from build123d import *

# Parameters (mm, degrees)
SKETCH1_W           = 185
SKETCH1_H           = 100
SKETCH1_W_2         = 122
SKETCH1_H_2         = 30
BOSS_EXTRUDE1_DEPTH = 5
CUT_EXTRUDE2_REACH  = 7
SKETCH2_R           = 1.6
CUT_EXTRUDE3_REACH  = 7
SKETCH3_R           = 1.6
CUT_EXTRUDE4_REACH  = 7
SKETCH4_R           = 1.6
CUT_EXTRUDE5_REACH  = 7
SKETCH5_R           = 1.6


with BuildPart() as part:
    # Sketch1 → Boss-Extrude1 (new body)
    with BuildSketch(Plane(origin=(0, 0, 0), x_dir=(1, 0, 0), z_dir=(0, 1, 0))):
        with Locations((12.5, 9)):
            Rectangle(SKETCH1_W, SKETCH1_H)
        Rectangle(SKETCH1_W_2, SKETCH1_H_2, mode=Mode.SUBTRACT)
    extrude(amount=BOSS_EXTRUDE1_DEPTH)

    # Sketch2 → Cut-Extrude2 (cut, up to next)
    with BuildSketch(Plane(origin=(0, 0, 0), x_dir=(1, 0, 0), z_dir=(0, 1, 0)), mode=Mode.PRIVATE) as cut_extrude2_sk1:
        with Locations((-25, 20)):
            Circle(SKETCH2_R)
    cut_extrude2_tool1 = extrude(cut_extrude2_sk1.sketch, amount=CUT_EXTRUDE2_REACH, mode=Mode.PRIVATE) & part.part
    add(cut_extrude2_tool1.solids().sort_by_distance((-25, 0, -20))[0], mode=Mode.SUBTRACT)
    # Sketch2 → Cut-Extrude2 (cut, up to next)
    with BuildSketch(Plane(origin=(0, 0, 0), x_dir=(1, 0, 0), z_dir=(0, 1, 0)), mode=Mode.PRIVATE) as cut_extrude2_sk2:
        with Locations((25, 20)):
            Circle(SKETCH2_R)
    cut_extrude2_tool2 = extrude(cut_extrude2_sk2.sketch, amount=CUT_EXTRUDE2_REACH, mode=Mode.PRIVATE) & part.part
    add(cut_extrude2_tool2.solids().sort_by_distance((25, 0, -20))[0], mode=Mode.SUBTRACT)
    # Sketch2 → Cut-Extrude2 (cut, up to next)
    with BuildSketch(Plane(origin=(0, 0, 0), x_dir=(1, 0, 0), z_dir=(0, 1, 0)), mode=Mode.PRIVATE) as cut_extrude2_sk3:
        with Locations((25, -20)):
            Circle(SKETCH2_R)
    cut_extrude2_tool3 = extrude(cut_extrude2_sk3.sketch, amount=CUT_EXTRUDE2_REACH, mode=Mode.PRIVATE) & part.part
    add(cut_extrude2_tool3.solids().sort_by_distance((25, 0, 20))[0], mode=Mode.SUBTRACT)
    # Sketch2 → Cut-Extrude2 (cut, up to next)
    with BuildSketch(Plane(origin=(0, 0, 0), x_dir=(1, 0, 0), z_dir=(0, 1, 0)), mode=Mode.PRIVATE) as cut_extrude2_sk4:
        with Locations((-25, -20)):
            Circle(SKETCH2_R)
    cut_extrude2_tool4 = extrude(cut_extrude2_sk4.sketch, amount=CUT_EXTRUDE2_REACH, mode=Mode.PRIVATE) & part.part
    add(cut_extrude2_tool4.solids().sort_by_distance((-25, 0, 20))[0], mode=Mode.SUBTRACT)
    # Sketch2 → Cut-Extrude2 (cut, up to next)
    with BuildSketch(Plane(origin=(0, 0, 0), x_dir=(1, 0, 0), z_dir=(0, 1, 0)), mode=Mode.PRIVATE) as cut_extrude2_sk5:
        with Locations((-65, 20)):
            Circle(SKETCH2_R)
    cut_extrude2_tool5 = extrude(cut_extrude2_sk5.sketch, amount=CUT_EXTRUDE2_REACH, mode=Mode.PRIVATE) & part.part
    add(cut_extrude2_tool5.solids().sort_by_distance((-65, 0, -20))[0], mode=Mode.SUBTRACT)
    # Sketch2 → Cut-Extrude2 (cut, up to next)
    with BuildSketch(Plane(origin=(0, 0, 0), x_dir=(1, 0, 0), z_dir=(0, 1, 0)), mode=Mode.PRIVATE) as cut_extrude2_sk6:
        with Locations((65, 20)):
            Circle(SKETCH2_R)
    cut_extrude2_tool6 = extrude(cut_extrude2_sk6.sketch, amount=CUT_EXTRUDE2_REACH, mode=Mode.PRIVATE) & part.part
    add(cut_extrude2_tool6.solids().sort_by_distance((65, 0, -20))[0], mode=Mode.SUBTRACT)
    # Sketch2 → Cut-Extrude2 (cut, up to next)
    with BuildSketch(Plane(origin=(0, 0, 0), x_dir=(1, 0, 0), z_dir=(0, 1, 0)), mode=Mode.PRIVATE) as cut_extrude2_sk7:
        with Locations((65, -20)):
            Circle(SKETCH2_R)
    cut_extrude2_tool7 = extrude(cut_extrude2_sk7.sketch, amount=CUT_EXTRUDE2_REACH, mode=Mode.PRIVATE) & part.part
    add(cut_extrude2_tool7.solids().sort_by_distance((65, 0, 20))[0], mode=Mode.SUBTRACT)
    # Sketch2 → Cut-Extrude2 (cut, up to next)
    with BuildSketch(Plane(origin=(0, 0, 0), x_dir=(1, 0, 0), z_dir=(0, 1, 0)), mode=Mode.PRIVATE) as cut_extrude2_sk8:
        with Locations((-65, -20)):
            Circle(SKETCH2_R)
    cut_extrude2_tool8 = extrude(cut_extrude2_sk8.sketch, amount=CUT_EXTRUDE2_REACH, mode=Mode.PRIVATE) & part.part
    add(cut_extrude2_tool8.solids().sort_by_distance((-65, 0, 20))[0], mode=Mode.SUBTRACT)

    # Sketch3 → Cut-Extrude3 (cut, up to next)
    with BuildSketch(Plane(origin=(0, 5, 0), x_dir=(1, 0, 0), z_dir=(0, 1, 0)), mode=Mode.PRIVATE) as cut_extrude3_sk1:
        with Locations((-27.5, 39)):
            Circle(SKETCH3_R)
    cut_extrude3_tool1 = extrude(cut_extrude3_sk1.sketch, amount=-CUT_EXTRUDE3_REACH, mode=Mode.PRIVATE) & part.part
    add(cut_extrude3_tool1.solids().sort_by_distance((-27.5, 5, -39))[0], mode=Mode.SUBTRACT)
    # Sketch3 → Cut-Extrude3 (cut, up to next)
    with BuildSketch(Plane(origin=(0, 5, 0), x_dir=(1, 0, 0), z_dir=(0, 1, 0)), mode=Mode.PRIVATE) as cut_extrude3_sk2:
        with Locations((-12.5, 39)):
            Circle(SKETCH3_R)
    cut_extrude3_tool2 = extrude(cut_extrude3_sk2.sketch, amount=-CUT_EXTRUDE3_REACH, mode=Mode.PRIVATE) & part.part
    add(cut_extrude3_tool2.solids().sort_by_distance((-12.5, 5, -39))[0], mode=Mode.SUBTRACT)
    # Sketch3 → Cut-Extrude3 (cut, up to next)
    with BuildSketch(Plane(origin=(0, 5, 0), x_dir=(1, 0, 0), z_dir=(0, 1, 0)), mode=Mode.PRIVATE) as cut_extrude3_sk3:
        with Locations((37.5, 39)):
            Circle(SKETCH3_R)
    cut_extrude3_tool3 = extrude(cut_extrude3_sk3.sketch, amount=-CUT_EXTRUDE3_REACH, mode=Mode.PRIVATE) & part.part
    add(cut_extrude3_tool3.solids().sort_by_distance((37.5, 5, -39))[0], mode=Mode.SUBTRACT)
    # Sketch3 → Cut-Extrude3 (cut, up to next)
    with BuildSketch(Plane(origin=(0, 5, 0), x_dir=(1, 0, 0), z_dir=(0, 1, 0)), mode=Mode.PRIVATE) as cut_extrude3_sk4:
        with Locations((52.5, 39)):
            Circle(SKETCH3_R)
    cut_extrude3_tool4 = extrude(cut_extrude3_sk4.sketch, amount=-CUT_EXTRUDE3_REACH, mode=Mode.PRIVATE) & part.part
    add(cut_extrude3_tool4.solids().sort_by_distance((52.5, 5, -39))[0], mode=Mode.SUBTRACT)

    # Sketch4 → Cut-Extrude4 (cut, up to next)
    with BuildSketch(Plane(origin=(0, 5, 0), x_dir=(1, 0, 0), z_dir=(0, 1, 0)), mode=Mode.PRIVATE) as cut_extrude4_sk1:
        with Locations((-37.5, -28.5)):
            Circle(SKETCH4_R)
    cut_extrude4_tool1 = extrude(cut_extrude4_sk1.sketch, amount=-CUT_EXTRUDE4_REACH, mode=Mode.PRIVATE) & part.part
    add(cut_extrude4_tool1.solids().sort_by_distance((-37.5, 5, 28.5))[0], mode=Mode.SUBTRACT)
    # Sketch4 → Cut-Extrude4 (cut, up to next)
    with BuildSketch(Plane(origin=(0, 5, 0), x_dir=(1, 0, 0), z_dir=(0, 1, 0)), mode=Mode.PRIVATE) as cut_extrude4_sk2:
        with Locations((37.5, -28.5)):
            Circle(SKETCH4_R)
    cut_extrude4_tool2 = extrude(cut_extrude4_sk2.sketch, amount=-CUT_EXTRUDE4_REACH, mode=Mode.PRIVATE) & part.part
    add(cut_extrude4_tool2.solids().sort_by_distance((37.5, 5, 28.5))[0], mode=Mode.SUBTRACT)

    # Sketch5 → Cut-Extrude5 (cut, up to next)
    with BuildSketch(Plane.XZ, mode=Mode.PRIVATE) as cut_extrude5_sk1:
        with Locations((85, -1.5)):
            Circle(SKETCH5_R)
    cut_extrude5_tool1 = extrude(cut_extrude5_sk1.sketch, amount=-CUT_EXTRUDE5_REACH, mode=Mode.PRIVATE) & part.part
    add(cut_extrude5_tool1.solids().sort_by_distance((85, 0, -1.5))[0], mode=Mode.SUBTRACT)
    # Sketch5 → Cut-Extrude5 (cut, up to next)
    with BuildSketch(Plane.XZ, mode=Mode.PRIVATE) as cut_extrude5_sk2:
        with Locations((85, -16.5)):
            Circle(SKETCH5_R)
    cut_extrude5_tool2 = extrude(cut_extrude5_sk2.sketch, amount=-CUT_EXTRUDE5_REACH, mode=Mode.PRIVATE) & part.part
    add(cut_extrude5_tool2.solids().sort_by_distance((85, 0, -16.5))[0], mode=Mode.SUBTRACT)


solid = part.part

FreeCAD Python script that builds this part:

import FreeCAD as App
import Part
import Sketcher

V = App.Vector
Q = App.Units.Quantity

doc = App.newDocument("Part")
body = doc.addObject("PartDesign::Body", "Body")

# Sketch on XZ plane
sketch1 = doc.addObject("Sketcher::SketchObject", "Sketch")
body.addObject(sketch1)
sketch1.AttachmentSupport = (doc.XZ_Plane, [""])
sketch1.MapMode = "FlatFace"
sketch1.addGeometry([
    Part.LineSegment(V(-80, -59, 0), V(-80, 41, 0)),  # 0
    Part.LineSegment(V(-80, 41, 0), V(105, 41, 0)),  # 1
    Part.LineSegment(V(105, 41, 0), V(105, -59, 0)),  # 2
    Part.LineSegment(V(105, -59, 0), V(-80, -59, 0)),  # 3
    Part.LineSegment(V(61, 15, 0), V(-61, 15, 0)),  # 4
    Part.LineSegment(V(-61, 15, 0), V(-61, -15, 0)),  # 5
    Part.LineSegment(V(-61, -15, 0), V(61, -15, 0)),  # 6
    Part.LineSegment(V(61, -15, 0), V(61, 15, 0)),  # 7
], False)
sketch1.addConstraint([
    Sketcher.Constraint("Coincident", 0, 2, 1, 1),
    Sketcher.Constraint("Coincident", 1, 2, 2, 1),
    Sketcher.Constraint("Coincident", 2, 2, 3, 1),
    Sketcher.Constraint("Coincident", 3, 2, 0, 1),
    Sketcher.Constraint("Coincident", 4, 2, 5, 1),
    Sketcher.Constraint("Coincident", 5, 2, 6, 1),
    Sketcher.Constraint("Coincident", 6, 2, 7, 1),
    Sketcher.Constraint("Coincident", 7, 2, 4, 1),
    Sketcher.Constraint("Vertical", 0),
    Sketcher.Constraint("Horizontal", 1),
    Sketcher.Constraint("Vertical", 2),
    Sketcher.Constraint("Horizontal", 3),
    Sketcher.Constraint("Horizontal", 4),
    Sketcher.Constraint("Vertical", 5),
    Sketcher.Constraint("Horizontal", 6),
    Sketcher.Constraint("Vertical", 7),
    Sketcher.Constraint("Symmetric", 4, 2, 6, 2, -1, 1),
    Sketcher.Constraint("DistanceX", 1, 1, 1, 2, Q("185 mm")),
    Sketcher.Constraint("DistanceX", 4, 2, 4, 1, Q("122 mm")),
    Sketcher.Constraint("DistanceY", 0, 1, 0, 2, Q("100 mm")),
    Sketcher.Constraint("DistanceY", 5, 2, 5, 1, Q("30 mm")),
    Sketcher.Constraint("DistanceX", 0, 2, -1, 1, Q("80 mm")),
    Sketcher.Constraint("DistanceY", -1, 1, 0, 2, Q("41 mm")),
])
pad1 = doc.addObject("PartDesign::Pad", "Pad")
body.addObject(pad1)
pad1.Profile = sketch1
pad1.Length = 5
pad1.Reversed = True

# Sketch on XZ plane
sketch2 = doc.addObject("Sketcher::SketchObject", "Sketch001")
body.addObject(sketch2)
sketch2.AttachmentSupport = (doc.XZ_Plane, [""])
sketch2.MapMode = "FlatFace"
sketch2.addGeometry(Part.Circle(V(-25, -20, 0), V(0, 0, 1), 1.6), False)
sketch2.addConstraint([
    Sketcher.Constraint("Diameter", 0, Q("3.2 mm")),
    Sketcher.Constraint("DistanceX", 0, 3, -1, 1, Q("25 mm")),
    Sketcher.Constraint("DistanceY", 0, 3, -1, 1, Q("20 mm")),
])
pocket1 = doc.addObject("PartDesign::Pocket", "Pocket")
body.addObject(pocket1)
pocket1.Profile = sketch2
pocket1.Type = "UpToFirst"

# Sketch on XZ plane
sketch3 = doc.addObject("Sketcher::SketchObject", "Sketch002")
body.addObject(sketch3)
sketch3.AttachmentSupport = (doc.XZ_Plane, [""])
sketch3.MapMode = "FlatFace"
sketch3.addGeometry(Part.Circle(V(25, -20, 0), V(0, 0, 1), 1.6), False)
sketch3.addConstraint([
    Sketcher.Constraint("Diameter", 0, Q("3.2 mm")),
    Sketcher.Constraint("DistanceX", -1, 1, 0, 3, Q("25 mm")),
    Sketcher.Constraint("DistanceY", 0, 3, -1, 1, Q("20 mm")),
])
pocket2 = doc.addObject("PartDesign::Pocket", "Pocket001")
body.addObject(pocket2)
pocket2.Profile = sketch3
pocket2.Type = "UpToFirst"

# Sketch on XZ plane
sketch4 = doc.addObject("Sketcher::SketchObject", "Sketch003")
body.addObject(sketch4)
sketch4.AttachmentSupport = (doc.XZ_Plane, [""])
sketch4.MapMode = "FlatFace"
sketch4.addGeometry(Part.Circle(V(25, 20, 0), V(0, 0, 1), 1.6), False)
sketch4.addConstraint([
    Sketcher.Constraint("Diameter", 0, Q("3.2 mm")),
    Sketcher.Constraint("DistanceX", -1, 1, 0, 3, Q("25 mm")),
    Sketcher.Constraint("DistanceY", -1, 1, 0, 3, Q("20 mm")),
])
pocket3 = doc.addObject("PartDesign::Pocket", "Pocket002")
body.addObject(pocket3)
pocket3.Profile = sketch4
pocket3.Type = "UpToFirst"

# Sketch on XZ plane
sketch5 = doc.addObject("Sketcher::SketchObject", "Sketch004")
body.addObject(sketch5)
sketch5.AttachmentSupport = (doc.XZ_Plane, [""])
sketch5.MapMode = "FlatFace"
sketch5.addGeometry(Part.Circle(V(-25, 20, 0), V(0, 0, 1), 1.6), False)
sketch5.addConstraint([
    Sketcher.Constraint("Diameter", 0, Q("3.2 mm")),
    Sketcher.Constraint("DistanceX", 0, 3, -1, 1, Q("25 mm")),
    Sketcher.Constraint("DistanceY", -1, 1, 0, 3, Q("20 mm")),
])
pocket4 = doc.addObject("PartDesign::Pocket", "Pocket003")
body.addObject(pocket4)
pocket4.Profile = sketch5
pocket4.Type = "UpToFirst"

# Sketch on XZ plane
sketch6 = doc.addObject("Sketcher::SketchObject", "Sketch005")
body.addObject(sketch6)
sketch6.AttachmentSupport = (doc.XZ_Plane, [""])
sketch6.MapMode = "FlatFace"
sketch6.addGeometry(Part.Circle(V(-65, -20, 0), V(0, 0, 1), 1.6), False)
sketch6.addConstraint([
    Sketcher.Constraint("Diameter", 0, Q("3.2 mm")),
    Sketcher.Constraint("DistanceX", 0, 3, -1, 1, Q("65 mm")),
    Sketcher.Constraint("DistanceY", 0, 3, -1, 1, Q("20 mm")),
])
pocket5 = doc.addObject("PartDesign::Pocket", "Pocket004")
body.addObject(pocket5)
pocket5.Profile = sketch6
pocket5.Type = "UpToFirst"

# Sketch on XZ plane
sketch7 = doc.addObject("Sketcher::SketchObject", "Sketch006")
body.addObject(sketch7)
sketch7.AttachmentSupport = (doc.XZ_Plane, [""])
sketch7.MapMode = "FlatFace"
sketch7.addGeometry(Part.Circle(V(65, -20, 0), V(0, 0, 1), 1.6), False)
sketch7.addConstraint([
    Sketcher.Constraint("Diameter", 0, Q("3.2 mm")),
    Sketcher.Constraint("DistanceX", -1, 1, 0, 3, Q("65 mm")),
    Sketcher.Constraint("DistanceY", 0, 3, -1, 1, Q("20 mm")),
])
pocket6 = doc.addObject("PartDesign::Pocket", "Pocket005")
body.addObject(pocket6)
pocket6.Profile = sketch7
pocket6.Type = "UpToFirst"

# Sketch on XZ plane
sketch8 = doc.addObject("Sketcher::SketchObject", "Sketch007")
body.addObject(sketch8)
sketch8.AttachmentSupport = (doc.XZ_Plane, [""])
sketch8.MapMode = "FlatFace"
sketch8.addGeometry(Part.Circle(V(65, 20, 0), V(0, 0, 1), 1.6), False)
sketch8.addConstraint([
    Sketcher.Constraint("Diameter", 0, Q("3.2 mm")),
    Sketcher.Constraint("DistanceX", -1, 1, 0, 3, Q("65 mm")),
    Sketcher.Constraint("DistanceY", -1, 1, 0, 3, Q("20 mm")),
])
pocket7 = doc.addObject("PartDesign::Pocket", "Pocket006")
body.addObject(pocket7)
pocket7.Profile = sketch8
pocket7.Type = "UpToFirst"

# Sketch on XZ plane
sketch9 = doc.addObject("Sketcher::SketchObject", "Sketch008")
body.addObject(sketch9)
sketch9.AttachmentSupport = (doc.XZ_Plane, [""])
sketch9.MapMode = "FlatFace"
sketch9.addGeometry(Part.Circle(V(-65, 20, 0), V(0, 0, 1), 1.6), False)
sketch9.addConstraint([
    Sketcher.Constraint("Diameter", 0, Q("3.2 mm")),
    Sketcher.Constraint("DistanceX", 0, 3, -1, 1, Q("65 mm")),
    Sketcher.Constraint("DistanceY", -1, 1, 0, 3, Q("20 mm")),
])
pocket8 = doc.addObject("PartDesign::Pocket", "Pocket007")
body.addObject(pocket8)
pocket8.Profile = sketch9
pocket8.Type = "UpToFirst"

# Sketch on XZ plane
sketch10 = doc.addObject("Sketcher::SketchObject", "Sketch009")
body.addObject(sketch10)
sketch10.AttachmentSupport = (doc.XZ_Plane, [""])
sketch10.MapMode = "FlatFace"
sketch10.AttachmentOffset = App.Placement(V(0, 0, -5), App.Rotation())
sketch10.addGeometry(Part.Circle(V(-27.5, -39, 0), V(0, 0, 1), 1.6), False)
sketch10.addConstraint([
    Sketcher.Constraint("Diameter", 0, Q("3.2 mm")),
    Sketcher.Constraint("DistanceY", 0, 3, -1, 1, Q("39 mm")),
    Sketcher.Constraint("DistanceX", 0, 3, -1, 1, Q("27.5 mm")),
])
pocket9 = doc.addObject("PartDesign::Pocket", "Pocket008")
body.addObject(pocket9)
pocket9.Profile = sketch10
pocket9.Type = "UpToFirst"
pocket9.Reversed = True

# Sketch on XZ plane
sketch11 = doc.addObject("Sketcher::SketchObject", "Sketch010")
body.addObject(sketch11)
sketch11.AttachmentSupport = (doc.XZ_Plane, [""])
sketch11.MapMode = "FlatFace"
sketch11.AttachmentOffset = App.Placement(V(0, 0, -5), App.Rotation())
sketch11.addGeometry(Part.Circle(V(-12.5, -39, 0), V(0, 0, 1), 1.6), False)
sketch11.addConstraint([
    Sketcher.Constraint("Diameter", 0, Q("3.2 mm")),
    Sketcher.Constraint("DistanceY", 0, 3, -1, 1, Q("39 mm")),
    Sketcher.Constraint("DistanceX", 0, 3, -1, 1, Q("12.5 mm")),
])
pocket10 = doc.addObject("PartDesign::Pocket", "Pocket009")
body.addObject(pocket10)
pocket10.Profile = sketch11
pocket10.Type = "UpToFirst"
pocket10.Reversed = True

# Sketch on XZ plane
sketch12 = doc.addObject("Sketcher::SketchObject", "Sketch011")
body.addObject(sketch12)
sketch12.AttachmentSupport = (doc.XZ_Plane, [""])
sketch12.MapMode = "FlatFace"
sketch12.AttachmentOffset = App.Placement(V(0, 0, -5), App.Rotation())
sketch12.addGeometry(Part.Circle(V(37.5, -39, 0), V(0, 0, 1), 1.6), False)
sketch12.addConstraint([
    Sketcher.Constraint("Diameter", 0, Q("3.2 mm")),
    Sketcher.Constraint("DistanceY", 0, 3, -1, 1, Q("39 mm")),
    Sketcher.Constraint("DistanceX", -1, 1, 0, 3, Q("37.5 mm")),
])
pocket11 = doc.addObject("PartDesign::Pocket", "Pocket010")
body.addObject(pocket11)
pocket11.Profile = sketch12
pocket11.Type = "UpToFirst"
pocket11.Reversed = True

# Sketch on XZ plane
sketch13 = doc.addObject("Sketcher::SketchObject", "Sketch012")
body.addObject(sketch13)
sketch13.AttachmentSupport = (doc.XZ_Plane, [""])
sketch13.MapMode = "FlatFace"
sketch13.AttachmentOffset = App.Placement(V(0, 0, -5), App.Rotation())
sketch13.addGeometry(Part.Circle(V(52.5, -39, 0), V(0, 0, 1), 1.6), False)
sketch13.addConstraint([
    Sketcher.Constraint("Diameter", 0, Q("3.2 mm")),
    Sketcher.Constraint("DistanceY", 0, 3, -1, 1, Q("39 mm")),
    Sketcher.Constraint("DistanceX", -1, 1, 0, 3, Q("52.5 mm")),
])
pocket12 = doc.addObject("PartDesign::Pocket", "Pocket011")
body.addObject(pocket12)
pocket12.Profile = sketch13
pocket12.Type = "UpToFirst"
pocket12.Reversed = True

# Sketch on XZ plane
sketch14 = doc.addObject("Sketcher::SketchObject", "Sketch013")
body.addObject(sketch14)
sketch14.AttachmentSupport = (doc.XZ_Plane, [""])
sketch14.MapMode = "FlatFace"
sketch14.AttachmentOffset = App.Placement(V(0, 0, -5), App.Rotation())
sketch14.addGeometry(Part.Circle(V(-37.5, 28.5, 0), V(0, 0, 1), 1.6), False)
sketch14.addConstraint([
    Sketcher.Constraint("Diameter", 0, Q("3.2 mm")),
    Sketcher.Constraint("DistanceX", 0, 3, -1, 1, Q("37.5 mm")),
    Sketcher.Constraint("DistanceY", -1, 1, 0, 3, Q("28.5 mm")),
])
pocket13 = doc.addObject("PartDesign::Pocket", "Pocket012")
body.addObject(pocket13)
pocket13.Profile = sketch14
pocket13.Type = "UpToFirst"
pocket13.Reversed = True

# Sketch on XZ plane
sketch15 = doc.addObject("Sketcher::SketchObject", "Sketch014")
body.addObject(sketch15)
sketch15.AttachmentSupport = (doc.XZ_Plane, [""])
sketch15.MapMode = "FlatFace"
sketch15.AttachmentOffset = App.Placement(V(0, 0, -5), App.Rotation())
sketch15.addGeometry(Part.Circle(V(37.5, 28.5, 0), V(0, 0, 1), 1.6), False)
sketch15.addConstraint([
    Sketcher.Constraint("Diameter", 0, Q("3.2 mm")),
    Sketcher.Constraint("DistanceX", -1, 1, 0, 3, Q("37.5 mm")),
    Sketcher.Constraint("DistanceY", -1, 1, 0, 3, Q("28.5 mm")),
])
pocket14 = doc.addObject("PartDesign::Pocket", "Pocket013")
body.addObject(pocket14)
pocket14.Profile = sketch15
pocket14.Type = "UpToFirst"
pocket14.Reversed = True

# Sketch on XZ plane
sketch16 = doc.addObject("Sketcher::SketchObject", "Sketch015")
body.addObject(sketch16)
sketch16.AttachmentSupport = (doc.XZ_Plane, [""])
sketch16.MapMode = "FlatFace"
sketch16.addGeometry(Part.Circle(V(85, -1.5, 0), V(0, 0, 1), 1.6), False)
sketch16.addConstraint([
    Sketcher.Constraint("Diameter", 0, Q("3.2 mm")),
    Sketcher.Constraint("DistanceX", -1, 1, 0, 3, Q("85 mm")),
    Sketcher.Constraint("DistanceY", 0, 3, -1, 1, Q("1.5 mm")),
])
pocket15 = doc.addObject("PartDesign::Pocket", "Pocket014")
body.addObject(pocket15)
pocket15.Profile = sketch16
pocket15.Type = "UpToFirst"

# Sketch on XZ plane
sketch17 = doc.addObject("Sketcher::SketchObject", "Sketch016")
body.addObject(sketch17)
sketch17.AttachmentSupport = (doc.XZ_Plane, [""])
sketch17.MapMode = "FlatFace"
sketch17.addGeometry(Part.Circle(V(85, -16.5, 0), V(0, 0, 1), 1.6), False)
sketch17.addConstraint([
    Sketcher.Constraint("Diameter", 0, Q("3.2 mm")),
    Sketcher.Constraint("DistanceX", -1, 1, 0, 3, Q("85 mm")),
    Sketcher.Constraint("DistanceY", 0, 3, -1, 1, Q("16.5 mm")),
])
pocket16 = doc.addObject("PartDesign::Pocket", "Pocket015")
body.addObject(pocket16)
pocket16.Profile = sketch17
pocket16.Type = "UpToFirst"

doc.recompute()
